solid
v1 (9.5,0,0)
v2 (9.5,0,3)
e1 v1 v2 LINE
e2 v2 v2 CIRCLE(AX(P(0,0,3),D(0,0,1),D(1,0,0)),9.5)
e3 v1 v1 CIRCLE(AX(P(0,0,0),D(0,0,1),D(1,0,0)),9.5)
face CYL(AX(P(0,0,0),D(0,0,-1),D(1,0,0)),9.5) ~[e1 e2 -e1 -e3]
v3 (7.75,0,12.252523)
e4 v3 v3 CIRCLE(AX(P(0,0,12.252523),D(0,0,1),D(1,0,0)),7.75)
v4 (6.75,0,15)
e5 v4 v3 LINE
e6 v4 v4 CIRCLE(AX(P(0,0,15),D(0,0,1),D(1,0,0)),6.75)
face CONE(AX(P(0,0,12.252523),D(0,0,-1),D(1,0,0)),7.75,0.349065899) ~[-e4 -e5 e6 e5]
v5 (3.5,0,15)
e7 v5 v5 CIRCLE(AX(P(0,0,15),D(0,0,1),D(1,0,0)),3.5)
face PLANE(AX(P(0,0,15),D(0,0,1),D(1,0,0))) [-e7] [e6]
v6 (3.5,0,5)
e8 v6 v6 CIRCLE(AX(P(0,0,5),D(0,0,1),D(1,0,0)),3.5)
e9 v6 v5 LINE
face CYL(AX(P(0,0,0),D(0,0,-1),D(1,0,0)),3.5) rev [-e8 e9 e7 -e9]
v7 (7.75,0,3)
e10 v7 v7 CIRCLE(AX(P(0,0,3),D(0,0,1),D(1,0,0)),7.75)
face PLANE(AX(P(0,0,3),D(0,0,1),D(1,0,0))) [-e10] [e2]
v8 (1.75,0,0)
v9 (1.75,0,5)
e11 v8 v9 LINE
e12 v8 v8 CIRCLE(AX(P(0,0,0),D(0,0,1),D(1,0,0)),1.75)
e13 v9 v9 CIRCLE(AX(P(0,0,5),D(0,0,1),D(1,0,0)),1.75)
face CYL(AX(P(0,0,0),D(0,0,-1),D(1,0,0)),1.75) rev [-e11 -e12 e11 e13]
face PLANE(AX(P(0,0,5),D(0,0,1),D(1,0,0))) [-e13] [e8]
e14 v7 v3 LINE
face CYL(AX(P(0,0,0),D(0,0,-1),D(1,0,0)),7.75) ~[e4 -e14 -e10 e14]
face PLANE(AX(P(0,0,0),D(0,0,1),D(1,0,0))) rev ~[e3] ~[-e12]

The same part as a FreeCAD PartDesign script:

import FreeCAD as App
import Part
import Sketcher
from FreeCAD import Vector
Q = App.Units.Quantity


def edges_at(feature, points):
    """Names of the edges that pass closest to the given points."""
    edges = feature.Shape.Edges
    near = lambda p: min(range(len(edges)), key=lambda i: edges[i].distToShape(Part.Vertex(*p))[0])
    return sorted({f"Edge{near(p) + 1}" for p in points})

doc = App.newDocument("Part")
body = doc.addObject("PartDesign::Body", "Body")

# Sketch on XY plane
sketch1 = body.newObject("Sketcher::SketchObject", "Sketch")
sketch1.AttachmentSupport = (doc.getObject("XY_Plane"), [""])
sketch1.MapMode = "FlatFace"
sketch1.addGeometry([
    Part.Circle(Vector(0, 0, 0), Vector(0, 0, 1), 10),
    Part.Circle(Vector(0, 0, 0), Vector(0, 0, 1), 8),
], False)
sketch1.addConstraint([
    Sketcher.Constraint("Coincident", 0, 3, -1, 1),
    Sketcher.Constraint("Coincident", 1, 3, -1, 1),
    Sketcher.Constraint("Diameter", 0, Q("19 mm")),
    Sketcher.Constraint("Diameter", 1, Q("15.5 mm")),
])
pad1 = body.newObject("PartDesign::Pad", "Pad")
pad1.Profile = sketch1
pad1.Length = 3

# Sketch on XY plane
sketch2 = body.newObject("Sketcher::SketchObject", "Sketch001")
sketch2.AttachmentSupport = (doc.getObject("XY_Plane"), [""])
sketch2.MapMode = "FlatFace"
sketch2.addGeometry([
    Part.Circle(Vector(0, 0, 0), Vector(0, 0, 1), 7.8),
    Part.Circle(Vector(0, 0, 0), Vector(0, 0, 1), 3.5),
], False)
sketch2.addConstraint([
    Sketcher.Constraint("Coincident", 0, 3, -1, 1),
    Sketcher.Constraint("Coincident", 1, 3, -1, 1),
    Sketcher.Constraint("Diameter", 1, Q("7 mm")),
    Sketcher.Constraint("Diameter", 0, Q("15.5 mm")),
])
pad2 = body.newObject("PartDesign::Pad", "Pad001")
pad2.Profile = sketch2
pad2.Length = 15

# Sketch on XY plane
sketch3 = body.newObject("Sketcher::SketchObject", "Sketch002")
sketch3.AttachmentSupport = (doc.getObject("XY_Plane"), [""])
sketch3.MapMode = "FlatFace"
sketch3.addGeometry([
    Part.Circle(Vector(0, 0, 0), Vector(0, 0, 1), 3.5),
    Part.Circle(Vector(0, 0, 0), Vector(0, 0, 1), 1.8),
], False)
sketch3.addConstraint([
    Sketcher.Constraint("Coincident", 0, 3, -1, 1),
    Sketcher.Constraint("Coincident", 1, 3, -1, 1),
    Sketcher.Constraint("Diameter", 0, Q("7 mm")),
    Sketcher.Constraint("Diameter", 1, Q("3.5 mm")),
])
pad3 = body.newObject("PartDesign::Pad", "Pad002")
pad3.Profile = sketch3
pad3.Length = 5
doc.recompute()

chamfer = body.newObject("PartDesign::Chamfer", "Chamfer")
chamfer.Base = (pad3, edges_at(pad3, [(-7.75, 0, 15)]))
chamfer.ChamferType = "Two distances"
chamfer.Size = 1
chamfer.Size2 = 2.747477
chamfer.FlipDirection = True

doc.recompute()
